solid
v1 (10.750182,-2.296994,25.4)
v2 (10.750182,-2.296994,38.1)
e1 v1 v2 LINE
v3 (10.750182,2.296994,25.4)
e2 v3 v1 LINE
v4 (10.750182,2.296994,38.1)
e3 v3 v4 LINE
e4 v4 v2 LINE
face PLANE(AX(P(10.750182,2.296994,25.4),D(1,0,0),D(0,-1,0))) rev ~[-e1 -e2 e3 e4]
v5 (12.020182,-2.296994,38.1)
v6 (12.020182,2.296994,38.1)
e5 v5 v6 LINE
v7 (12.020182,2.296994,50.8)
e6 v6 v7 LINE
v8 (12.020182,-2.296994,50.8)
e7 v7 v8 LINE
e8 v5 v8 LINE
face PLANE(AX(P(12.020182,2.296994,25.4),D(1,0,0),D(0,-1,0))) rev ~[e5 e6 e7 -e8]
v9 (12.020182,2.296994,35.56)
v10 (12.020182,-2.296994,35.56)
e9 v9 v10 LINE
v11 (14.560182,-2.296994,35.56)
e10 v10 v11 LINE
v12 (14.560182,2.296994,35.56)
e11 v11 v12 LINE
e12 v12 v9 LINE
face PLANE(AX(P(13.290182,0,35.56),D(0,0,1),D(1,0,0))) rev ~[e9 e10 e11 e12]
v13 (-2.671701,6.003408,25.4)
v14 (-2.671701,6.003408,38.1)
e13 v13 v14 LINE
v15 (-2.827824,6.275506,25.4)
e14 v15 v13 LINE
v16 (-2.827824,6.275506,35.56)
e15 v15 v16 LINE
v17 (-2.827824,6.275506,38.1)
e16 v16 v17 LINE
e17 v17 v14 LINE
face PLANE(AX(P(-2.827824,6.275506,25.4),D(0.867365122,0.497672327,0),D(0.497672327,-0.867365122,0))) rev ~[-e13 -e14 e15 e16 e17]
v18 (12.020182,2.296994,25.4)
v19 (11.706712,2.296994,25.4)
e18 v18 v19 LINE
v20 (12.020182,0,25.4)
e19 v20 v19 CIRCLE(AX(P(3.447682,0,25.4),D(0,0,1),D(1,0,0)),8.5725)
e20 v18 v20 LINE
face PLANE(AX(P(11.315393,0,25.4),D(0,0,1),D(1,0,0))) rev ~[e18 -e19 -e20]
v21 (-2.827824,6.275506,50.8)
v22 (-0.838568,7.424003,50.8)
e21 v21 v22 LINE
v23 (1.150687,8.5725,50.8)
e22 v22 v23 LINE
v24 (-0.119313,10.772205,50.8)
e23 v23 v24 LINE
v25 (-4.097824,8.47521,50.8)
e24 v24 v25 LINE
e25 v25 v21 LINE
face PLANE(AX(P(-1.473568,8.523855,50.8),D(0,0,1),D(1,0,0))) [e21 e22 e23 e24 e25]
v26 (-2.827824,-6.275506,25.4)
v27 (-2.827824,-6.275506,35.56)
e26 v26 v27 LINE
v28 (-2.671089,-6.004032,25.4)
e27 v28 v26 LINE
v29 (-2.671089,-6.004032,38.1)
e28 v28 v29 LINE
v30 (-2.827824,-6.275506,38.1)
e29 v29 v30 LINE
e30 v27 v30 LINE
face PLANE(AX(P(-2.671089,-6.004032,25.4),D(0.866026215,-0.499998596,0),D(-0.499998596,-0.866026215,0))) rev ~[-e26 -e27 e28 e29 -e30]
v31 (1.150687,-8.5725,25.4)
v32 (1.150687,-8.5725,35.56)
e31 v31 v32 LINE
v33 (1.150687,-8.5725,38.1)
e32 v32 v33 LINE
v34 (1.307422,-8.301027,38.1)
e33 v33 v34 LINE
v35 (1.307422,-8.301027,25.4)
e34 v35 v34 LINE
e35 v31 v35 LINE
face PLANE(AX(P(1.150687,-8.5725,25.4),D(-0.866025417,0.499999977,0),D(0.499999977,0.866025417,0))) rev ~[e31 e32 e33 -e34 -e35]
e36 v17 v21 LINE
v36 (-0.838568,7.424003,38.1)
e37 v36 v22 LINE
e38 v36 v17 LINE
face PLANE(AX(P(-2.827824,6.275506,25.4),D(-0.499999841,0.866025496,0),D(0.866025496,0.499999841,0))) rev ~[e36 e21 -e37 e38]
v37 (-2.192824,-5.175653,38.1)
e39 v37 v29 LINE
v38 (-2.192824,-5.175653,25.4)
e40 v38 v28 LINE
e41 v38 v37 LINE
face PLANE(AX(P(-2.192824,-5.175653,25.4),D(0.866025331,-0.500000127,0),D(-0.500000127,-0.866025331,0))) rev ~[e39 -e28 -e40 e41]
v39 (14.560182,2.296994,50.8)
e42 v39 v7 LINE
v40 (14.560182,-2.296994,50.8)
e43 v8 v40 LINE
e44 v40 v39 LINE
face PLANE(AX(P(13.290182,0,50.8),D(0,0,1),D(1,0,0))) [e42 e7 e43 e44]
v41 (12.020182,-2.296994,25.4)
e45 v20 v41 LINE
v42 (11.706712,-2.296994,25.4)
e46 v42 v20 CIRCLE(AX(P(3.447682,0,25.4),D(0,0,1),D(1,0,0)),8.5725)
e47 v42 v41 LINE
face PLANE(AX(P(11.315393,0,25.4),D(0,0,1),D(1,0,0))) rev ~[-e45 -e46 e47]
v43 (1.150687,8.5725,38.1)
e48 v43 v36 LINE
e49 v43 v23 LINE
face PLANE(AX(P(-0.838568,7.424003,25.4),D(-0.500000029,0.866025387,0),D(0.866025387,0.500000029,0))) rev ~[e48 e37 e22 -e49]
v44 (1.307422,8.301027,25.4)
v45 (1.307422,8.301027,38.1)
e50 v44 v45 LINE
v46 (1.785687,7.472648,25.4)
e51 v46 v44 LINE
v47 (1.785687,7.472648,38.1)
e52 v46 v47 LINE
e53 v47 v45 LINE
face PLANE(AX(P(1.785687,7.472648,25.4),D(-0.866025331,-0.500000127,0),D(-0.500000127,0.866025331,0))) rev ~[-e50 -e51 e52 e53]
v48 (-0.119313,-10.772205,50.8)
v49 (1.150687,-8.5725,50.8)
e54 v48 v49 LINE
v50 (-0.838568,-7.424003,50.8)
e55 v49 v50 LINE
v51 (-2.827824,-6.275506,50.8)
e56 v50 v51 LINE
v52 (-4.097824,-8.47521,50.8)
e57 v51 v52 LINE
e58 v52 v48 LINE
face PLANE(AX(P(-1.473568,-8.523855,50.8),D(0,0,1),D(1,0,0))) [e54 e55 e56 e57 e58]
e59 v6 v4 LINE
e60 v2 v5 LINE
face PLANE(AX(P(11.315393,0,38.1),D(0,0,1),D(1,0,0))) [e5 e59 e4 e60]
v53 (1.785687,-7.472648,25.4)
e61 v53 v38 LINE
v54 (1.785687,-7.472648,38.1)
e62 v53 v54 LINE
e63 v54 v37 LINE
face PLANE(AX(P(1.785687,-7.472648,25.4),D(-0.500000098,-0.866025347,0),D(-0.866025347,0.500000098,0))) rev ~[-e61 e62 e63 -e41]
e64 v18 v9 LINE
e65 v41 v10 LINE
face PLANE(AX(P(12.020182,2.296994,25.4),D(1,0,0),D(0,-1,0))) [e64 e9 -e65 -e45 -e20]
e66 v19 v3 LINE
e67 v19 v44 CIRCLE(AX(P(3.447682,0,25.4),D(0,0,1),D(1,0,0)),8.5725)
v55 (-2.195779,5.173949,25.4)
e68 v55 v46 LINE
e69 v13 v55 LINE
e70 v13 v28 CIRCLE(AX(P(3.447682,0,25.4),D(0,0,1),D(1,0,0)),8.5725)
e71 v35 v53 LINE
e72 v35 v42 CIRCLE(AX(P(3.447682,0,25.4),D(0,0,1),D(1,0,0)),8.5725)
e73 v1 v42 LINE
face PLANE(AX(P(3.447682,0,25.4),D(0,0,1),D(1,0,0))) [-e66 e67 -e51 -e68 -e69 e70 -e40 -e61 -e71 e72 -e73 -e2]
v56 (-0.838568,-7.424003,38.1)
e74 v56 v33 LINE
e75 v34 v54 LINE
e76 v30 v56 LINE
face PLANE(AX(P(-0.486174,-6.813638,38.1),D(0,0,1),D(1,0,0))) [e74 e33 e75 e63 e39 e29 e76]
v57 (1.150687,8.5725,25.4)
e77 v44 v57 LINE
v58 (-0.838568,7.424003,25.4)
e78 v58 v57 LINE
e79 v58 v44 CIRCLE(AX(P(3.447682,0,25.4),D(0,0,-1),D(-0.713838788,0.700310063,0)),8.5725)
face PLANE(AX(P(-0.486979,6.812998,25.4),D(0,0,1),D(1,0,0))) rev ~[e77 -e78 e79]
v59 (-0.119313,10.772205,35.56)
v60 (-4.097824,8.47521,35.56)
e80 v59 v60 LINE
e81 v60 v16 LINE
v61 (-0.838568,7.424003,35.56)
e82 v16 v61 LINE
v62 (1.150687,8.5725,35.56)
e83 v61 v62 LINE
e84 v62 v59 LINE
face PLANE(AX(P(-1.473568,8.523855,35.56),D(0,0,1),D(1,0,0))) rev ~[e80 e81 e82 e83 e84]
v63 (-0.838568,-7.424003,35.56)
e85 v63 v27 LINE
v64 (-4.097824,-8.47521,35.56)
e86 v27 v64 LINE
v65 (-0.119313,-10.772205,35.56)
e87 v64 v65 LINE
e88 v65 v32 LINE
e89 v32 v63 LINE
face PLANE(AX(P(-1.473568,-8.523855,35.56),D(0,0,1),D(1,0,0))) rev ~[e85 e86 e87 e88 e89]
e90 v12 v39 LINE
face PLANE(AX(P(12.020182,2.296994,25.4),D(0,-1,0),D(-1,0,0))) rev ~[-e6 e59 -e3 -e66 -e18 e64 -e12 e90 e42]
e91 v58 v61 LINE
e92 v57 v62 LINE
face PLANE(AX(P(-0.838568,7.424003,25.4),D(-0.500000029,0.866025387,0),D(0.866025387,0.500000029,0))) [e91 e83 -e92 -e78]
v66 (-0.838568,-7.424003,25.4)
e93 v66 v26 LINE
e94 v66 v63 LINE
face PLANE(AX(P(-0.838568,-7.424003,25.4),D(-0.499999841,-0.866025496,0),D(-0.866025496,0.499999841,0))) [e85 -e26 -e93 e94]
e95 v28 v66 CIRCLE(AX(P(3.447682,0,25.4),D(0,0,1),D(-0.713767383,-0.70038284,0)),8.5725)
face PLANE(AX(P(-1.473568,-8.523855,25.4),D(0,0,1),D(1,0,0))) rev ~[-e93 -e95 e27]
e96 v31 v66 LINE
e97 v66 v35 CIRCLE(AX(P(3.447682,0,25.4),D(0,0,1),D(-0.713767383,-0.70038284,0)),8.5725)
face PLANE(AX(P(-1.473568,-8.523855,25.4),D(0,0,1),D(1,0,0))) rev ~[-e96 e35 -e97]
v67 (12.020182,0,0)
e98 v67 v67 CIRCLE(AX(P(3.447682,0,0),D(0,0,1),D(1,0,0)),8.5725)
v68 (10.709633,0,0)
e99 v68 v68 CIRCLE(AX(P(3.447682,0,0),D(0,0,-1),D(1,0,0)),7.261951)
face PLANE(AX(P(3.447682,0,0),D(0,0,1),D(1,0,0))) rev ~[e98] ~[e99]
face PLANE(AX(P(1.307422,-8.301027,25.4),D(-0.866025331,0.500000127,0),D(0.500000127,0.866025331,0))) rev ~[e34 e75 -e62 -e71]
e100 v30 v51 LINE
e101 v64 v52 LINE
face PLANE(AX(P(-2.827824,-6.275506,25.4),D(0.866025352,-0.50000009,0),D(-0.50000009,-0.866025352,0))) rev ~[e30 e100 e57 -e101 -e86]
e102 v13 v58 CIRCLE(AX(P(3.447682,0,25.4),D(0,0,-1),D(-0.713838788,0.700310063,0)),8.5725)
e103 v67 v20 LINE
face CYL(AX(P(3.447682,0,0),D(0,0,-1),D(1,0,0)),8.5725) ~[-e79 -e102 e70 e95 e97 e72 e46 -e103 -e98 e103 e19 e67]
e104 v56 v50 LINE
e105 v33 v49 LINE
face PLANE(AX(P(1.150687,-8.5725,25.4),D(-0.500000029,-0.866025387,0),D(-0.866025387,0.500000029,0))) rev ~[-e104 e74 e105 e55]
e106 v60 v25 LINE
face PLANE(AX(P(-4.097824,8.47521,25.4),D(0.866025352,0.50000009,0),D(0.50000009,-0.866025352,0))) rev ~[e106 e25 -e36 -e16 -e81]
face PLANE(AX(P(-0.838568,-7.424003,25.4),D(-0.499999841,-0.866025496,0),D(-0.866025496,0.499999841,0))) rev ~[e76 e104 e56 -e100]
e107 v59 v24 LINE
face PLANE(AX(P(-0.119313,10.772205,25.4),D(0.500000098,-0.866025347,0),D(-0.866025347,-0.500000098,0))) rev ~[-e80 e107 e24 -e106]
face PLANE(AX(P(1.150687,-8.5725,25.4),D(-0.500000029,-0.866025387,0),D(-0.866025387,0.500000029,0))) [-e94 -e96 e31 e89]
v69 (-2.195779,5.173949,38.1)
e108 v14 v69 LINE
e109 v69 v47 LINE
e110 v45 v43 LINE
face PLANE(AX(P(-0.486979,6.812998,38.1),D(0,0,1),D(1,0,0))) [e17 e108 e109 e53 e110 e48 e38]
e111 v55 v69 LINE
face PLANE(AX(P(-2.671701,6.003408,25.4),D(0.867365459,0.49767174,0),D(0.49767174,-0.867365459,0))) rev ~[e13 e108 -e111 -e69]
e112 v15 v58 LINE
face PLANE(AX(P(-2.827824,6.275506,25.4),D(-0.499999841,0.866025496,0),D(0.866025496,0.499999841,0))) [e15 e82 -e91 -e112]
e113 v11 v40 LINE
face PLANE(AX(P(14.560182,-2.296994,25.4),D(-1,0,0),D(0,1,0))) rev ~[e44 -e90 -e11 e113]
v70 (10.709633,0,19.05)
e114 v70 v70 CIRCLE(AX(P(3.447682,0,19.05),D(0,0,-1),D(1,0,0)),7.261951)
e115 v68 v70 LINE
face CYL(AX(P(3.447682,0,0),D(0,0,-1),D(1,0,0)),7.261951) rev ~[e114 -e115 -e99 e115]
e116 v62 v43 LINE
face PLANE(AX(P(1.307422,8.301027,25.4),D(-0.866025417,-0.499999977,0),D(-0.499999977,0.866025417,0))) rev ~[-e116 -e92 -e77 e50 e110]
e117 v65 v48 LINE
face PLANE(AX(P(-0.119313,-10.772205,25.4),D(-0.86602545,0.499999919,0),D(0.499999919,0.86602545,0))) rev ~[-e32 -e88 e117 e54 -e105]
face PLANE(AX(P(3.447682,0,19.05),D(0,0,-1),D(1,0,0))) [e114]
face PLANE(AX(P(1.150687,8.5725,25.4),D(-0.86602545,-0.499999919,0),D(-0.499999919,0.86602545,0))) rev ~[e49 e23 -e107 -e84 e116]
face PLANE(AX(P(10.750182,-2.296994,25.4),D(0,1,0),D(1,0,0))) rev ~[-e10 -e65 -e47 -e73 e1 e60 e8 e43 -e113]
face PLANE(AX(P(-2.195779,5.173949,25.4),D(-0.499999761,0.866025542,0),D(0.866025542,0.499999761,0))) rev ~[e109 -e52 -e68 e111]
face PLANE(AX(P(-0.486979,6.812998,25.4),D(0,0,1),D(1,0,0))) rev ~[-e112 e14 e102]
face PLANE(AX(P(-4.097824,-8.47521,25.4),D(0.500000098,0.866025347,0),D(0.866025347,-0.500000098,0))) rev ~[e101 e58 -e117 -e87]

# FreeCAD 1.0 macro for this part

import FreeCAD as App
import Part
import Sketcher

V = App.Vector
Q = App.Units.Quantity

doc = App.newDocument("Part")
body = doc.addObject("PartDesign::Body", "Body")

# Sketch on XY plane
sketch1 = doc.addObject("Sketcher::SketchObject", "Sketch")
body.addObject(sketch1)
sketch1.AttachmentSupport = (doc.XY_Plane, [""])
sketch1.MapMode = "FlatFace"
sketch1.addGeometry(Part.Circle(V(3, 0, 0), V(0, 0, 1), 9), False)
sketch1.addConstraint([
    Sketcher.Constraint("PointOnObject", 0, 3, -1),
    Sketcher.Constraint("Diameter", 0, Q("0.675 in")),
    Sketcher.Constraint("DistanceX", -1, 1, 0, 3, 3.447682),
])
pad1 = doc.addObject("PartDesign::Pad", "Pad")
body.addObject(pad1)
pad1.Profile = sketch1
pad1.Length = Q("1 in")

# Sketch on XY plane
sketch2 = doc.addObject("Sketcher::SketchObject", "Sketch001")
body.addObject(sketch2)
sketch2.AttachmentSupport = (doc.XY_Plane, [""])
sketch2.MapMode = "FlatFace"
sketch2.AttachmentOffset = App.Placement(V(0, 0, 1 * 25.4), App.Rotation())
sketch2.addGeometry([
    Part.LineSegment(V(-2.19, -5.18, 0), V(-2.67, -6, 0)),  # 0
    Part.LineSegment(V(-2.67, -6, 0), V(-2.83, -6.28, 0)),  # 1
    Part.LineSegment(V(-2.83, -6.28, 0), V(-0.84, -7.42, 0)),  # 2
    Part.LineSegment(V(-0.84, -7.42, 0), V(1.15, -8.57, 0)),  # 3
    Part.LineSegment(V(1.15, -8.57, 0), V(1.31, -8.3, 0)),  # 4
    Part.LineSegment(V(1.31, -8.3, 0), V(1.79, -7.47, 0)),  # 5
    Part.LineSegment(V(1.79, -7.47, 0), V(-2.19, -5.18, 0)),  # 6
    Part.LineSegment(V(-2.67, 6, 0), V(-2.2, 5.17, 0)),  # 7
    Part.LineSegment(V(-2.2, 5.17, 0), V(1.79, 7.47, 0)),  # 8
    Part.LineSegment(V(1.79, 7.47, 0), V(1.31, 8.3, 0)),  # 9
    Part.LineSegment(V(1.31, 8.3, 0), V(1.15, 8.57, 0)),  # 10
    Part.LineSegment(V(1.15, 8.57, 0), V(-0.84, 7.42, 0)),  # 11
    Part.LineSegment(V(-0.84, 7.42, 0), V(-2.83, 6.28, 0)),  # 12
    Part.LineSegment(V(-2.83, 6.28, 0), V(-2.67, 6, 0)),  # 13
    Part.LineSegment(V(10.75, 2.3, 0), V(10.75, -2.3, 0)),  # 14
    Part.LineSegment(V(10.75, -2.3, 0), V(12.02, -2.3, 0)),  # 15
    Part.LineSegment(V(12.02, -2.3, 0), V(12.02, 2.3, 0)),  # 16
    Part.LineSegment(V(12.02, 2.3, 0), V(10.75, 2.3, 0)),  # 17
], False)
sketch2.addConstraint([
    Sketcher.Constraint("Coincident", 0, 2, 1, 1),
    Sketcher.Constraint("Coincident", 1, 2, 2, 1),
    Sketcher.Constraint("Coincident", 2, 2, 3, 1),
    Sketcher.Constraint("Coincident", 3, 2, 4, 1),
    Sketcher.Constraint("Coincident", 4, 2, 5, 1),
    Sketcher.Constraint("Coincident", 5, 2, 6, 1),
    Sketcher.Constraint("Coincident", 6, 2, 0, 1),
    Sketcher.Constraint("Coincident", 7, 2, 8, 1),
    Sketcher.Constraint("Coincident", 8, 2, 9, 1),
    Sketcher.Constraint("Coincident", 9, 2, 10, 1),
    Sketcher.Constraint("Coincident", 10, 2, 11, 1),
    Sketcher.Constraint("Coincident", 11, 2, 12, 1),
    Sketcher.Constraint("Coincident", 12, 2, 13, 1),
    Sketcher.Constraint("Coincident", 13, 2, 7, 1),
    Sketcher.Constraint("Coincident", 14, 2, 15, 1),
    Sketcher.Constraint("Coincident", 15, 2, 16, 1),
    Sketcher.Constraint("Coincident", 16, 2, 17, 1),
    Sketcher.Constraint("Coincident", 17, 2, 14, 1),
    Sketcher.Constraint("Vertical", 14),
    Sketcher.Constraint("Horizontal", 15),
    Sketcher.Constraint("Vertical", 16),
    Sketcher.Constraint("Horizontal", 17),
    Sketcher.Constraint("Symmetric", 5, 2, 8, 2, -1),
    Sketcher.Constraint("Symmetric", 4, 2, 9, 2, -1),
    Sketcher.Constraint("Symmetric", 3, 2, 10, 2, -1),
    Sketcher.Constraint("Symmetric", 2, 2, 11, 2, -1),
    Sketcher.Constraint("Symmetric", 1, 2, 12, 2, -1),
    Sketcher.Constraint("Parallel", 0, 1),
    Sketcher.Constraint("Perpendicular", 1, 2),
    Sketcher.Constraint("Parallel", 2, 3),
    Sketcher.Constraint("Perpendicular", 3, 4),
    Sketcher.Constraint("Parallel", 4, 5),
    Sketcher.Constraint("Perpendicular", 5, 6),
    Sketcher.Constraint("Perpendicular", 8, 9),
    Sketcher.Constraint("Parallel", 7, 13),
    Sketcher.Constraint("Equal", 2, 3),
    Sketcher.Constraint("Equal", 1, 4),
    Sketcher.Constraint("Angle", 0, Q("-120.000008 deg")),
    Sketcher.Constraint("DistanceX", 15, 1, 15, 2, Q("0.05 in")),
    Sketcher.Constraint("Distance", 8, Q("0.181 in")),
    Sketcher.Constraint("DistanceX", 3, 2, 5, 2, Q("0.025 in")),
    Sketcher.Constraint("DistanceY", 3, 2, -1, 1, Q("0.3375 in")),
    Sketcher.Constraint("DistanceY", 14, 2, 14, 1, 4.593988),
    Sketcher.Constraint("DistanceX", 13, 2, -1, 1, 2.671701),
    Sketcher.Constraint("DistanceY", 6, 2, 8, 2, 12.648301),
    Sketcher.Constraint("DistanceX", 7, 2, 9, 2, 3.503201),
    Sketcher.Constraint("DistanceX", 0, 2, -1, 1, 2.671089),
    Sketcher.Constraint("DistanceX", 4, 2, 14, 2, 9.44276),
    Sketcher.Constraint("DistanceY", 2, 2, 14, 2, 5.127009),
])
pad2 = doc.addObject("PartDesign::Pad", "Pad001")
body.addObject(pad2)
pad2.Profile = sketch2
pad2.Length = Q("0.5 in")

# Sketch on XY plane
sketch3 = doc.addObject("Sketcher::SketchObject", "Sketch002")
body.addObject(sketch3)
sketch3.AttachmentSupport = (doc.XY_Plane, [""])
sketch3.MapMode = "FlatFace"
sketch3.addGeometry(Part.Circle(V(3, 0, 0), V(0, 0, 1), 7), False)
sketch3.addConstraint([
    Sketcher.Constraint("PointOnObject", 0, 3, -1),
    Sketcher.Constraint("Diameter", 0, 14.523902),
    Sketcher.Constraint("DistanceX", -1, 1, 0, 3, 3.447682),
])
pocket1 = doc.addObject("PartDesign::Pocket", "Pocket")
body.addObject(pocket1)
pocket1.Profile = sketch3
pocket1.Length = Q("0.75 in")
pocket1.Reversed = True

# Sketch on XY plane
sketch4 = doc.addObject("Sketcher::SketchObject", "Sketch003")
body.addObject(sketch4)
sketch4.AttachmentSupport = (doc.XY_Plane, [""])
sketch4.MapMode = "FlatFace"
sketch4.AttachmentOffset = App.Placement(V(0, 0, 1 * 25.4), App.Rotation())
sketch4.addGeometry([
    Part.LineSegment(V(-0.8, -7.4, 0), V(-2.8, -6.3, 0)),  # 0
    Part.LineSegment(V(-2.8, -6.3, 0), V(-4.1, -8.5, 0)),  # 1
    Part.LineSegment(V(-4.1, -8.5, 0), V(-0.1, -10.8, 0)),  # 2
    Part.LineSegment(V(-0.1, -10.8, 0), V(1.2, -8.6, 0)),  # 3
    Part.LineSegment(V(1.2, -8.6, 0), V(-0.8, -7.4, 0)),  # 4
    Part.LineSegment(V(14.6, 2.3, 0), V(12, 2.3, 0)),  # 5
    Part.LineSegment(V(12, 2.3, 0), V(12, -2.3, 0)),  # 6
    Part.LineSegment(V(12, -2.3, 0), V(14.6, -2.3, 0)),  # 7
    Part.LineSegment(V(14.6, -2.3, 0), V(14.6, 2.3, 0)),  # 8
    Part.LineSegment(V(-4.1, 8.5, 0), V(-2.8, 6.3, 0)),  # 9
    Part.LineSegment(V(-2.8, 6.3, 0), V(-0.8, 7.4, 0)),  # 10
    Part.LineSegment(V(-0.8, 7.4, 0), V(1.2, 8.6, 0)),  # 11
    Part.LineSegment(V(1.2, 8.6, 0), V(-0.1, 10.8, 0)),  # 12
    Part.LineSegment(V(-0.1, 10.8, 0), V(-4.1, 8.5, 0)),  # 13
], False)
sketch4.addConstraint([
    Sketcher.Constraint("Coincident", 0, 2, 1, 1),
    Sketcher.Constraint("Coincident", 1, 2, 2, 1),
    Sketcher.Constraint("Coincident", 2, 2, 3, 1),
    Sketcher.Constraint("Coincident", 3, 2, 4, 1),
    Sketcher.Constraint("Coincident", 4, 2, 0, 1),
    Sketcher.Constraint("Coincident", 5, 2, 6, 1),
    Sketcher.Constraint("Coincident", 6, 2, 7, 1),
    Sketcher.Constraint("Coincident", 7, 2, 8, 1),
    Sketcher.Constraint("Coincident", 8, 2, 5, 1),
    Sketcher.Constraint("Coincident", 9, 2, 10, 1),
    Sketcher.Constraint("Coincident", 10, 2, 11, 1),
    Sketcher.Constraint("Coincident", 11, 2, 12, 1),
    Sketcher.Constraint("Coincident", 12, 2, 13, 1),
    Sketcher.Constraint("Coincident", 13, 2, 9, 1),
    Sketcher.Constraint("Horizontal", 5),
    Sketcher.Constraint("Vertical", 6),
    Sketcher.Constraint("Horizontal", 7),
    Sketcher.Constraint("Vertical", 8),
    Sketcher.Constraint("Symmetric", 0, 2, 9, 2, -1),
    Sketcher.Constraint("Symmetric", 4, 2, 10, 2, -1),
    Sketcher.Constraint("Symmetric", 3, 2, 11, 2, -1),
    Sketcher.Constraint("Symmetric", 2, 2, 12, 2, -1),
    Sketcher.Constraint("Symmetric", 1, 2, 13, 2, -1),
    Sketcher.Constraint("Perpendicular", 0, 1),
    Sketcher.Constraint("Perpendicular", 1, 2),
    Sketcher.Constraint("Perpendicular", 2, 3),
    Sketcher.Constraint("Perpendicular", 3, 4),
    Sketcher.Constraint("Equal", 0, 4),
    Sketcher.Constraint("DistanceX", 5, 2, 5, 1, Q("0.1 in")),
    Sketcher.Constraint("Angle", 0, Q("150.000011 deg")),
    Sketcher.Constraint("Distance", 1, Q("0.1 in")),
    Sketcher.Constraint("DistanceY", 3, 2, -1, 1, Q("0.3375 in")),
    Sketcher.Constraint("DistanceY", 0, 2, 5, 2, Q("0.3375 in")),
    Sketcher.Constraint("DistanceY", 6, 2, 6, 1, 4.593988),
    Sketcher.Constraint("DistanceY", 2, 2, 0, 2, 4.496699),
    Sketcher.Constraint("DistanceX", -1, 1, 7, 2, 14.560182),
    Sketcher.Constraint("DistanceX", 4, 2, 5, 2, 12.85875),
])
pad3 = doc.addObject("PartDesign::Pad", "Pad002")
body.addObject(pad3)
pad3.Profile = sketch4
pad3.Length = Q("1 in")

# Sketch on XY plane
sketch5 = doc.addObject("Sketcher::SketchObject", "Sketch004")
body.addObject(sketch5)
sketch5.AttachmentSupport = (doc.XY_Plane, [""])
sketch5.MapMode = "FlatFace"
sketch5.AttachmentOffset = App.Placement(V(0, 0, 1 * 25.4), App.Rotation())
sketch5.addGeometry([
    Part.LineSegment(V(-0.8, -7.4, 0), V(-2.8, -6.3, 0)),  # 0
    Part.LineSegment(V(-2.8, -6.3, 0), V(-4.1, -8.5, 0)),  # 1
    Part.LineSegment(V(-4.1, -8.5, 0), V(-0.1, -10.8, 0)),  # 2
    Part.LineSegment(V(-0.1, -10.8, 0), V(1.2, -8.6, 0)),  # 3
    Part.LineSegment(V(1.2, -8.6, 0), V(-0.8, -7.4, 0)),  # 4
    Part.LineSegment(V(14.6, 2.3, 0), V(12, 2.3, 0)),  # 5
    Part.LineSegment(V(12, 2.3, 0), V(12, -2.3, 0)),  # 6
    Part.LineSegment(V(12, -2.3, 0), V(14.6, -2.3, 0)),  # 7
    Part.LineSegment(V(14.6, -2.3, 0), V(14.6, 2.3, 0)),  # 8
    Part.LineSegment(V(-4.1, 8.5, 0), V(-2.8, 6.3, 0)),  # 9
    Part.LineSegment(V(-2.8, 6.3, 0), V(-0.8, 7.4, 0)),  # 10
    Part.LineSegment(V(-0.8, 7.4, 0), V(1.2, 8.6, 0)),  # 11
    Part.LineSegment(V(1.2, 8.6, 0), V(-0.1, 10.8, 0)),  # 12
    Part.LineSegment(V(-0.1, 10.8, 0), V(-4.1, 8.5, 0)),  # 13
], False)
sketch5.addConstraint([
    Sketcher.Constraint("Coincident", 0, 2, 1, 1),
    Sketcher.Constraint("Coincident", 1, 2, 2, 1),
    Sketcher.Constraint("Coincident", 2, 2, 3, 1),
    Sketcher.Constraint("Coincident", 3, 2, 4, 1),
    Sketcher.Constraint("Coincident", 4, 2, 0, 1),
    Sketcher.Constraint("Coincident", 5, 2, 6, 1),
    Sketcher.Constraint("Coincident", 6, 2, 7, 1),
    Sketcher.Constraint("Coincident", 7, 2, 8, 1),
    Sketcher.Constraint("Coincident", 8, 2, 5, 1),
    Sketcher.Constraint("Coincident", 9, 2, 10, 1),
    Sketcher.Constraint("Coincident", 10, 2, 11, 1),
    Sketcher.Constraint("Coincident", 11, 2, 12, 1),
    Sketcher.Constraint("Coincident", 12, 2, 13, 1),
    Sketcher.Constraint("Coincident", 13, 2, 9, 1),
    Sketcher.Constraint("Horizontal", 5),
    Sketcher.Constraint("Vertical", 6),
    Sketcher.Constraint("Horizontal", 7),
    Sketcher.Constraint("Vertical", 8),
    Sketcher.Constraint("Symmetric", 0, 2, 9, 2, -1),
    Sketcher.Constraint("Symmetric", 4, 2, 10, 2, -1),
    Sketcher.Constraint("Symmetric", 3, 2, 11, 2, -1),
    Sketcher.Constraint("Symmetric", 2, 2, 12, 2, -1),
    Sketcher.Constraint("Symmetric", 1, 2, 13, 2, -1),
    Sketcher.Constraint("Perpendicular", 0, 1),
    Sketcher.Constraint("Perpendicular", 1, 2),
    Sketcher.Constraint("Perpendicular", 2, 3),
    Sketcher.Constraint("Perpendicular", 3, 4),
    Sketcher.Constraint("Equal", 0, 4),
    Sketcher.Constraint("DistanceX", 5, 2, 5, 1, Q("0.1 in")),
    Sketcher.Constraint("Angle", 0, Q("150.000011 deg")),
    Sketcher.Constraint("Distance", 1, Q("0.1 in")),
    Sketcher.Constraint("DistanceY", 3, 2, -1, 1, Q("0.3375 in")),
    Sketcher.Constraint("DistanceY", 0, 2, 5, 2, Q("0.3375 in")),
    Sketcher.Constraint("DistanceY", 6, 2, 6, 1, 4.593988),
    Sketcher.Constraint("DistanceY", 2, 2, 0, 2, 4.496699),
    Sketcher.Constraint("DistanceX", -1, 1, 7, 2, 14.560182),
    Sketcher.Constraint("DistanceX", 4, 2, 5, 2, 12.85875),
])
pocket2 = doc.addObject("PartDesign::Pocket", "Pocket001")
body.addObject(pocket2)
pocket2.Profile = sketch5
pocket2.Length = Q("0.4 in")
pocket2.Reversed = True

doc.recompute()
